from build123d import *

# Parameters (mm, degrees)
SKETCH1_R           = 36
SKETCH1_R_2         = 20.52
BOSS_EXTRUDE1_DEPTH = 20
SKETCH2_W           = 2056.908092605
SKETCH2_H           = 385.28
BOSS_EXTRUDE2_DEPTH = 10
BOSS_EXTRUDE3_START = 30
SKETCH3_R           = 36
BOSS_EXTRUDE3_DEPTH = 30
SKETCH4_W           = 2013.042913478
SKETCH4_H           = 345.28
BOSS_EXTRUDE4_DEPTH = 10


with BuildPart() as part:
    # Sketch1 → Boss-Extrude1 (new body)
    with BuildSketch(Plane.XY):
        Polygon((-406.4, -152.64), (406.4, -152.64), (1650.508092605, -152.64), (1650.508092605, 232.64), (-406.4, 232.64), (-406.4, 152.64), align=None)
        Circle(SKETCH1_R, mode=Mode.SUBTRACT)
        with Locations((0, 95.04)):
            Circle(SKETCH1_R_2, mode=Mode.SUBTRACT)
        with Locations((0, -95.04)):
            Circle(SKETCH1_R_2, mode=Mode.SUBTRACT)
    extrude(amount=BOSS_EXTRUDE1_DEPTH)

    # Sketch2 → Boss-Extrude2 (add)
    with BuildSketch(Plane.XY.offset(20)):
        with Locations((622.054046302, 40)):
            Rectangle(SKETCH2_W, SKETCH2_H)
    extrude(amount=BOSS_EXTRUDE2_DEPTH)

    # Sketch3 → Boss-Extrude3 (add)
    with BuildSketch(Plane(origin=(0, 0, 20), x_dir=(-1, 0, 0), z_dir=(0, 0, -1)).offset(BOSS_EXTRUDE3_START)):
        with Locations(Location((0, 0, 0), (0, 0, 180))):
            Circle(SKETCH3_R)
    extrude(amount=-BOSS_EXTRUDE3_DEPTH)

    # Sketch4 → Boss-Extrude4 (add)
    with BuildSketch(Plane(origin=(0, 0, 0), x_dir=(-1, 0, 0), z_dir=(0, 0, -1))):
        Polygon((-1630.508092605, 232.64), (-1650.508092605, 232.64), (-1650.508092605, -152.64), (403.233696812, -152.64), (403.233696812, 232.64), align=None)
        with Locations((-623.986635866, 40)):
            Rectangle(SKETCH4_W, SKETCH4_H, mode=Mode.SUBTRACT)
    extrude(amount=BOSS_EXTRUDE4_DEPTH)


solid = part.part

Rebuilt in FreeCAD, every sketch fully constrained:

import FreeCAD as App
import Part
import Sketcher

V = App.Vector

doc = App.newDocument("Part")
body = doc.addObject("PartDesign::Body", "Body")

# Sketch on XY plane
sketch1 = body.newObject("Sketcher::SketchObject", "Sketch")
sketch1.AttachmentSupport = (doc.getObject("XY_Plane"), [""])
sketch1.MapMode = "FlatFace"
sketch1.addGeometry([
    Part.LineSegment(V(-406, -153, 0), V(1651, -153, 0)),  # 0
    Part.LineSegment(V(1651, -153, 0), V(1651, 233, 0)),  # 1
    Part.LineSegment(V(1651, 233, 0), V(-406, 233, 0)),  # 2
    Part.LineSegment(V(-406, 233, 0), V(-406, -153, 0)),  # 3
    Part.Circle(V(0, -95, 0), V(0, 0, 1), 21),  # 4
    Part.Circle(V(0, 0, 0), V(0, 0, 1), 36),  # 5
    Part.Circle(V(0, 95, 0), V(0, 0, 1), 21),  # 6
], False)
sketch1.addConstraint([
    Sketcher.Constraint("Coincident", 0, 2, 1, 1),
    Sketcher.Constraint("Coincident", 1, 2, 2, 1),
    Sketcher.Constraint("Coincident", 2, 2, 3, 1),
    Sketcher.Constraint("Coincident", 3, 2, 0, 1),
    Sketcher.Constraint("Horizontal", 0),
    Sketcher.Constraint("Vertical", 1),
    Sketcher.Constraint("Horizontal", 2),
    Sketcher.Constraint("Vertical", 3),
    Sketcher.Constraint("Coincident", 5, 3, -1, 1),
    Sketcher.Constraint("Equal", 4, 6),
    Sketcher.Constraint("Symmetric", 4, 3, 6, 3, -1, 1),
    Sketcher.Constraint("PointOnObject", 4, 3, -2),
    Sketcher.Constraint("Diameter", 5, 72.0),
    Sketcher.Constraint("Diameter", 4, 41.04),
    Sketcher.Constraint("DistanceY", 1, 1, 1, 2, 385.28),
    Sketcher.Constraint("DistanceX", 2, 2, -1, 1, 406.4),
    Sketcher.Constraint("DistanceY", 0, 2, 4, 3, 57.6),
    Sketcher.Constraint("DistanceY", 6, 3, 1, 2, 137.6),
    Sketcher.Constraint("DistanceX", 0, 1, 0, 2, 2056.908093),
])
pad1 = body.newObject("PartDesign::Pad", "Pad")
pad1.Profile = sketch1
pad1.Length = 20

# Sketch on XY plane
sketch2 = body.newObject("Sketcher::SketchObject", "Sketch001")
sketch2.AttachmentSupport = (doc.getObject("XY_Plane"), [""])
sketch2.MapMode = "FlatFace"
sketch2.AttachmentOffset = App.Placement(V(0, 0, 20), App.Rotation())
sketch2.addGeometry([
    Part.LineSegment(V(-406, 233, 0), V(-406, -153, 0)),
    Part.LineSegment(V(-406, -153, 0), V(1651, -153, 0)),
    Part.LineSegment(V(1651, -153, 0), V(1651, 233, 0)),
    Part.LineSegment(V(1651, 233, 0), V(-406, 233, 0)),
], False)
sketch2.addConstraint([
    Sketcher.Constraint("Coincident", 0, 2, 1, 1),
    Sketcher.Constraint("Coincident", 1, 2, 2, 1),
    Sketcher.Constraint("Coincident", 2, 2, 3, 1),
    Sketcher.Constraint("Coincident", 3, 2, 0, 1),
    Sketcher.Constraint("Vertical", 0),
    Sketcher.Constraint("Horizontal", 1),
    Sketcher.Constraint("Vertical", 2),
    Sketcher.Constraint("Horizontal", 3),
    Sketcher.Constraint("DistanceY", 0, 2, 0, 1, 385.28),
    Sketcher.Constraint("DistanceX", 0, 2, -1, 1, 406.4),
    Sketcher.Constraint("DistanceY", 0, 2, -1, 1, 152.64),
    Sketcher.Constraint("DistanceX", 1, 1, 1, 2, 2056.908093),
])
pad2 = body.newObject("PartDesign::Pad", "Pad001")
pad2.Profile = sketch2
pad2.Length = 10

# Sketch on XY plane
sketch3 = body.newObject("Sketcher::SketchObject", "Sketch002")
sketch3.AttachmentSupport = (doc.getObject("XY_Plane"), [""])
sketch3.MapMode = "FlatFace"
sketch3.AttachmentOffset = App.Placement(V(0, 0, -10), App.Rotation())
sketch3.addGeometry(Part.Circle(V(0, 0, 0), V(0, 0, 1), 36), False)
sketch3.addConstraint([
    Sketcher.Constraint("Coincident", 0, 3, -1, 1),
    Sketcher.Constraint("Diameter", 0, 72.0),
])
pad3 = body.newObject("PartDesign::Pad", "Pad002")
pad3.Profile = sketch3
pad3.Length = 30

# Sketch on XY plane
sketch4 = body.newObject("Sketcher::SketchObject", "Sketch003")
sketch4.AttachmentSupport = (doc.getObject("XY_Plane"), [""])
sketch4.MapMode = "FlatFace"
sketch4.addGeometry([
    Part.LineSegment(V(1651, 233, 0), V(1651, -153, 0)),  # 0
    Part.LineSegment(V(1651, -153, 0), V(-403, -153, 0)),  # 1
    Part.LineSegment(V(-403, -153, 0), V(-403, 233, 0)),  # 2
    Part.LineSegment(V(-403, 233, 0), V(1651, 233, 0)),  # 3
    Part.LineSegment(V(-383, -133, 0), V(1631, -133, 0)),  # 4
    Part.LineSegment(V(1631, -133, 0), V(1631, 213, 0)),  # 5
    Part.LineSegment(V(1631, 213, 0), V(-383, 213, 0)),  # 6
    Part.LineSegment(V(-383, 213, 0), V(-383, -133, 0)),  # 7
], False)
sketch4.addConstraint([
    Sketcher.Constraint("Coincident", 0, 2, 1, 1),
    Sketcher.Constraint("Coincident", 1, 2, 2, 1),
    Sketcher.Constraint("Coincident", 2, 2, 3, 1),
    Sketcher.Constraint("Coincident", 3, 2, 0, 1),
    Sketcher.Constraint("Coincident", 4, 2, 5, 1),
    Sketcher.Constraint("Coincident", 5, 2, 6, 1),
    Sketcher.Constraint("Coincident", 6, 2, 7, 1),
    Sketcher.Constraint("Coincident", 7, 2, 4, 1),
    Sketcher.Constraint("Vertical", 0),
    Sketcher.Constraint("Horizontal", 1),
    Sketcher.Constraint("Vertical", 2),
    Sketcher.Constraint("Horizontal", 3),
    Sketcher.Constraint("Horizontal", 4),
    Sketcher.Constraint("Vertical", 5),
    Sketcher.Constraint("Horizontal", 6),
    Sketcher.Constraint("Vertical", 7),
    Sketcher.Constraint("DistanceX", 4, 2, 0, 2, 20.0),
    Sketcher.Constraint("DistanceY", 0, 2, 4, 2, 20.0),
    Sketcher.Constraint("DistanceY", 5, 2, 3, 2, 20.0),
    Sketcher.Constraint("DistanceY", 0, 2, 0, 1, 385.28),
    Sketcher.Constraint("DistanceY", 0, 2, -1, 1, 152.64),
    Sketcher.Constraint("DistanceX", 1, 2, 1, 1, 2053.741789),
    Sketcher.Constraint("DistanceX", 4, 1, 4, 2, 2013.042913),
    Sketcher.Constraint("DistanceX", 6, 2, -1, 1, 382.534821),
])
pad4 = body.newObject("PartDesign::Pad", "Pad003")
pad4.Profile = sketch4
pad4.Length = 10
pad4.Reversed = True

doc.recompute()
